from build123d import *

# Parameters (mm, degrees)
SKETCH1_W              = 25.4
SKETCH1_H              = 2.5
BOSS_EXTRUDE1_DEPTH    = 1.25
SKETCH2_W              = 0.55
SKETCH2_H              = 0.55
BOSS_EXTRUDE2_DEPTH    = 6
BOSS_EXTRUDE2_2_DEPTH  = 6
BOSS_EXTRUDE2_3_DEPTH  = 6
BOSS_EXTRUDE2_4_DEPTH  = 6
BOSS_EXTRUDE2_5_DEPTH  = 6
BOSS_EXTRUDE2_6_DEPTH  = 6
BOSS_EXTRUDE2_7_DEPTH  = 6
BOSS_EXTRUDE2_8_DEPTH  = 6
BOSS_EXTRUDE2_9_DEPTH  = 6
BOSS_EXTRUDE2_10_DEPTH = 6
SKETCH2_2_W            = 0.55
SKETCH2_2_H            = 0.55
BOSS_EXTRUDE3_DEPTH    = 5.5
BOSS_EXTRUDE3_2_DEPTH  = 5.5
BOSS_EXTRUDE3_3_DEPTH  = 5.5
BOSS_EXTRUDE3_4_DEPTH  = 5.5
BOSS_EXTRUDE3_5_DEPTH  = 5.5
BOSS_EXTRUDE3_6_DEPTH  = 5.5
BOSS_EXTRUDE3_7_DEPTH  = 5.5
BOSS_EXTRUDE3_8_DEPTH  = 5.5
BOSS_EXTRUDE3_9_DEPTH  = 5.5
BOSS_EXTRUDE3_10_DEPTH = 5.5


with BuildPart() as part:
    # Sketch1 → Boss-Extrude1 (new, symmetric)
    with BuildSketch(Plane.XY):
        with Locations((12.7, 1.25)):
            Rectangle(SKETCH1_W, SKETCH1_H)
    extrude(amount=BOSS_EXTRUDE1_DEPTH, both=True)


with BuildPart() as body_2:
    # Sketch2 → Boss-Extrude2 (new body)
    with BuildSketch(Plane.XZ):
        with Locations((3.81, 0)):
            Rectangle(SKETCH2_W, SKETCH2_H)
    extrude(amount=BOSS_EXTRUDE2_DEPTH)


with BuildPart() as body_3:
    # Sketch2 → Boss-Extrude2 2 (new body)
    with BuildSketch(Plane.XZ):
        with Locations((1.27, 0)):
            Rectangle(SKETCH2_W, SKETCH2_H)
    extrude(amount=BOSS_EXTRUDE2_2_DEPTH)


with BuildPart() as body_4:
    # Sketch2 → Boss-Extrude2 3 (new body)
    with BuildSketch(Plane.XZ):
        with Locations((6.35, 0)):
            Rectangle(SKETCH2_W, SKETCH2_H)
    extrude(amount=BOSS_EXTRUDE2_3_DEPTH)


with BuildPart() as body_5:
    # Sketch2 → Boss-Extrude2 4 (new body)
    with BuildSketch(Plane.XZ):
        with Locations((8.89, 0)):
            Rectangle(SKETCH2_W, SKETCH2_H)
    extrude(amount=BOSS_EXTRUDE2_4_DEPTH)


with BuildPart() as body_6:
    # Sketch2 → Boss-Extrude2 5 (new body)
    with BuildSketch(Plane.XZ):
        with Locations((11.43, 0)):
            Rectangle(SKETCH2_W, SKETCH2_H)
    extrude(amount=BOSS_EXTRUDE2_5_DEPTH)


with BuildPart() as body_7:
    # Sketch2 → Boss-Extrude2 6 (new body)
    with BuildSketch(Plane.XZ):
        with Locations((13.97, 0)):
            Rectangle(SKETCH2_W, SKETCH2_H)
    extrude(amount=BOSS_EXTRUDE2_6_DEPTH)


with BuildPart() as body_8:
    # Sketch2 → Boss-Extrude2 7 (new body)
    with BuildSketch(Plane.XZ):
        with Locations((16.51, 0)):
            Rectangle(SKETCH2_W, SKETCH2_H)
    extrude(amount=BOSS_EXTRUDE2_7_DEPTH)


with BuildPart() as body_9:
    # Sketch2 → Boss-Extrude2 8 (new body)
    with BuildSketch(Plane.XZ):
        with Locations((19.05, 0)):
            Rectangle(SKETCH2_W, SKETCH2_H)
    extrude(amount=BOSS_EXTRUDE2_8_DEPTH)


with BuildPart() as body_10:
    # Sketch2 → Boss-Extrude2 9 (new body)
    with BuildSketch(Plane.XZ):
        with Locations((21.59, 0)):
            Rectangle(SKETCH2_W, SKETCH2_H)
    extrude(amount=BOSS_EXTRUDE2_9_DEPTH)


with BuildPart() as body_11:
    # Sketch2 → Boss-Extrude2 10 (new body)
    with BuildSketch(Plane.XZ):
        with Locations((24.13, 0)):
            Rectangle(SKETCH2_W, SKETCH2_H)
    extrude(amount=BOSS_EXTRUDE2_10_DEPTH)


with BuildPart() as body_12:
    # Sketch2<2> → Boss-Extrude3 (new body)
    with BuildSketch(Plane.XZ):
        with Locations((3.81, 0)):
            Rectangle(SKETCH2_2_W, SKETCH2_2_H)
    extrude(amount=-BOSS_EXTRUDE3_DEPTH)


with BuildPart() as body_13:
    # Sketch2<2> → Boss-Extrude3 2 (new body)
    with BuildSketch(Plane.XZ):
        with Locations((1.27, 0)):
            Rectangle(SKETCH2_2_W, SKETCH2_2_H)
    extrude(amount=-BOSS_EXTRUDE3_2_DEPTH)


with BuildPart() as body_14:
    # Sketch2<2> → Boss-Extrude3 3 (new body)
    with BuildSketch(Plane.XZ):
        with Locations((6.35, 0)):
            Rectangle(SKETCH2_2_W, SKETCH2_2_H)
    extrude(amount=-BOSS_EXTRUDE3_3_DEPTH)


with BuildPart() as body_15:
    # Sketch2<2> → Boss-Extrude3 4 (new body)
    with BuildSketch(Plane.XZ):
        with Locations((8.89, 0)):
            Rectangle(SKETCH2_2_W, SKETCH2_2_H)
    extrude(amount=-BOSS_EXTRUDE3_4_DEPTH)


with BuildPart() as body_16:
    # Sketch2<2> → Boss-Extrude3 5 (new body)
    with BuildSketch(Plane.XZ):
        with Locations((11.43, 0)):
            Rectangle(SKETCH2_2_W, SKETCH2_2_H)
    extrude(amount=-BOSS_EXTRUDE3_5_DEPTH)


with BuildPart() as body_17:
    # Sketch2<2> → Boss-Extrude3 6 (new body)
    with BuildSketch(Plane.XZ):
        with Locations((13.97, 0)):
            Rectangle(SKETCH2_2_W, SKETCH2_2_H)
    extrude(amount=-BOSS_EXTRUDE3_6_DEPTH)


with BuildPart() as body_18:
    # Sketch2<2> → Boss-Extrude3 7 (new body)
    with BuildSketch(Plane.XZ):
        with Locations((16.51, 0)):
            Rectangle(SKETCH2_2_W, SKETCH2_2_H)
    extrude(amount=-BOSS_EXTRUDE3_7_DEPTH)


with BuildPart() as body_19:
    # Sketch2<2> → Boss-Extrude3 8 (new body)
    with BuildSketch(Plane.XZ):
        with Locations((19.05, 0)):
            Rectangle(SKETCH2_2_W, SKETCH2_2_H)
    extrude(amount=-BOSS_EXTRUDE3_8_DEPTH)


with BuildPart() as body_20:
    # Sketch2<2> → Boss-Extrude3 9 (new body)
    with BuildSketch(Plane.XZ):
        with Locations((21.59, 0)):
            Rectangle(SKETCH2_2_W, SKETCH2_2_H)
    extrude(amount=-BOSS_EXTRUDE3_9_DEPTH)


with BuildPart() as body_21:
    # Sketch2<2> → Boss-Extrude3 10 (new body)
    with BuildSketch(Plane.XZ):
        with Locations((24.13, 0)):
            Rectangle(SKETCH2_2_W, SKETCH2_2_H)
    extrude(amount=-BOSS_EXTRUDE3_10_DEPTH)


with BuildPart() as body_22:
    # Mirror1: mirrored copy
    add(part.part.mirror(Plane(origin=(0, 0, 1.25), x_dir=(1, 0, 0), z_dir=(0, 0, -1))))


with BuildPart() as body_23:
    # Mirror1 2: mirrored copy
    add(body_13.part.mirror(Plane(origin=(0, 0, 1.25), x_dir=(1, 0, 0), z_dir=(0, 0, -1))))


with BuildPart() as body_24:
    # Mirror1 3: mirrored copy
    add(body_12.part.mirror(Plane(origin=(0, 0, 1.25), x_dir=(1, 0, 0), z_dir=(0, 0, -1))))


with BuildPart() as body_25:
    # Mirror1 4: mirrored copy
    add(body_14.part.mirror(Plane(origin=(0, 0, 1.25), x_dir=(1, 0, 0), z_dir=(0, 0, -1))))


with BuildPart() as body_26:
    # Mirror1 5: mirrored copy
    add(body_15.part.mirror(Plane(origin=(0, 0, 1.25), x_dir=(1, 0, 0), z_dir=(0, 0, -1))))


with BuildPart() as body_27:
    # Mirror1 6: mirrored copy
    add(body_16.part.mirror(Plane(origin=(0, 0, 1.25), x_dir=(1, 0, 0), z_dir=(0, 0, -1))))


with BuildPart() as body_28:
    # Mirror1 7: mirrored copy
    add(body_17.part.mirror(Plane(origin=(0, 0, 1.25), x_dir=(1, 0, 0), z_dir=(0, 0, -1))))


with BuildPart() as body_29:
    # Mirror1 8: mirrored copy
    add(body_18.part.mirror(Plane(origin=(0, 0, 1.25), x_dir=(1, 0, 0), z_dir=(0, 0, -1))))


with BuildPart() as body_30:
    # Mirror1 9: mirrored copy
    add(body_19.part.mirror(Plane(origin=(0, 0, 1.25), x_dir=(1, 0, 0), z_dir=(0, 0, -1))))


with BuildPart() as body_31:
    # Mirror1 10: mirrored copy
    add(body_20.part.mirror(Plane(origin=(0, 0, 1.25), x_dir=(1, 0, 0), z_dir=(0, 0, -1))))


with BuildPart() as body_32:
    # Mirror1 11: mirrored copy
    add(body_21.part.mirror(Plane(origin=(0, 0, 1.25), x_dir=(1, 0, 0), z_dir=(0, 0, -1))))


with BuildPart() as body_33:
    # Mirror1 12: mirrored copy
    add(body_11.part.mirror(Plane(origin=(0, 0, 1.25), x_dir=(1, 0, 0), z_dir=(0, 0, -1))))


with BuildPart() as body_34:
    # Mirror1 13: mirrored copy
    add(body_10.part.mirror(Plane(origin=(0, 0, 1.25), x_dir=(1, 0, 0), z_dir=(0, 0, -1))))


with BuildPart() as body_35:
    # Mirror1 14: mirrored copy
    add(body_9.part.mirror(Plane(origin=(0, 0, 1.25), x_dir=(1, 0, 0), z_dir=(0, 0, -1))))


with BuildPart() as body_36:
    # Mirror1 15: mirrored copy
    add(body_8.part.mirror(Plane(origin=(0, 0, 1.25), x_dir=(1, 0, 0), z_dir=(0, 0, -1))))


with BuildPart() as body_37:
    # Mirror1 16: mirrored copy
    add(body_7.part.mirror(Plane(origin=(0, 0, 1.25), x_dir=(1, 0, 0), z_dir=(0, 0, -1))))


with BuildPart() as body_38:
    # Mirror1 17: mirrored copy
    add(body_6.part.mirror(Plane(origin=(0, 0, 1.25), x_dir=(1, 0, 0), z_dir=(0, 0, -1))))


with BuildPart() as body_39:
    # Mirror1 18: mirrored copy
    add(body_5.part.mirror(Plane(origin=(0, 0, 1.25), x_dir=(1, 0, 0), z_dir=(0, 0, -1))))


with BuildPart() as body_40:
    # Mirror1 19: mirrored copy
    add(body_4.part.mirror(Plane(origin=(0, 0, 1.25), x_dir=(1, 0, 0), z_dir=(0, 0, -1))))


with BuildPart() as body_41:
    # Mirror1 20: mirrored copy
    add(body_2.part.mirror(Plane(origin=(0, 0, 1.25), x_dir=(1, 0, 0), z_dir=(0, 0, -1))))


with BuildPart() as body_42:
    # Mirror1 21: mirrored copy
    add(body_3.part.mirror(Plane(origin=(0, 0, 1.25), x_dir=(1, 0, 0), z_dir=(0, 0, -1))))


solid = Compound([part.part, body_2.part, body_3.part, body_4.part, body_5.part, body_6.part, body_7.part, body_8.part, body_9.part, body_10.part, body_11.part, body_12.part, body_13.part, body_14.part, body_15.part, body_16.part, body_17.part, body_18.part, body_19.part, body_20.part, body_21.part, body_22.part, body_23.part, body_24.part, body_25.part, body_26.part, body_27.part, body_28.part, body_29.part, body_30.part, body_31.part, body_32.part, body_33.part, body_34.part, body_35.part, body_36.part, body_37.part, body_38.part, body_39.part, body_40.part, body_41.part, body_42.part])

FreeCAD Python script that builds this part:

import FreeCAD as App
import Part
import Sketcher
from FreeCAD import Vector
Q = App.Units.Quantity

doc = App.newDocument("Part")
body = doc.addObject("PartDesign::Body", "Body")

sketch1 = body.newObject("Sketcher::SketchObject", "Sketch")
sketch1.AttachmentSupport = (doc.getObject("XY_Plane"), [""])
sketch1.MapMode = "FlatFace"
sketch1.addGeometry([
    Part.LineSegment(Vector(0, 2.5, 0), Vector(0, 0, 0)),
    Part.LineSegment(Vector(0, 0, 0), Vector(25.4, 0, 0)),
    Part.LineSegment(Vector(25.4, 0, 0), Vector(25.4, 2.5, 0)),
    Part.LineSegment(Vector(25.4, 2.5, 0), Vector(0, 2.5, 0)),
], False)
sketch1.addConstraint([
    Sketcher.Constraint("Coincident", 0, 2, 1, 1),
    Sketcher.Constraint("Coincident", 1, 2, 2, 1),
    Sketcher.Constraint("Coincident", 2, 2, 3, 1),
    Sketcher.Constraint("Coincident", 3, 2, 0, 1),
    Sketcher.Constraint("Vertical", 0),
    Sketcher.Constraint("Horizontal", 1),
    Sketcher.Constraint("Vertical", 2),
    Sketcher.Constraint("Horizontal", 3),
    Sketcher.Constraint("Coincident", 0, 2, -1, 1),
    Sketcher.Constraint("DistanceX", 1, 1, 1, 2, Q("25.4 mm")),
    Sketcher.Constraint("DistanceY", 0, 2, 0, 1, Q("2.5 mm")),
])
pad1 = body.newObject("PartDesign::Pad", "Pad")
pad1.Profile = sketch1
pad1.Length = 2.5
pad1.Midplane = True
body2 = doc.addObject("PartDesign::Body", "Body001")

sketch2 = body2.newObject("Sketcher::SketchObject", "Sketch001")
sketch2.AttachmentSupport = (doc.getObject("XZ_Plane001"), [""])
sketch2.MapMode = "FlatFace"
sketch2.addGeometry([
    Part.LineSegment(Vector(3.5, 0.3, 0), Vector(3.5, -0.3, 0)),
    Part.LineSegment(Vector(3.5, -0.3, 0), Vector(4.1, -0.3, 0)),
    Part.LineSegment(Vector(4.1, -0.3, 0), Vector(4.1, 0.3, 0)),
    Part.LineSegment(Vector(4.1, 0.3, 0), Vector(3.5, 0.3, 0)),
], False)
sketch2.addConstraint([
    Sketcher.Constraint("Coincident", 0, 2, 1, 1),
    Sketcher.Constraint("Coincident", 1, 2, 2, 1),
    Sketcher.Constraint("Coincident", 2, 2, 3, 1),
    Sketcher.Constraint("Coincident", 3, 2, 0, 1),
    Sketcher.Constraint("Vertical", 0),
    Sketcher.Constraint("Horizontal", 1),
    Sketcher.Constraint("Vertical", 2),
    Sketcher.Constraint("Horizontal", 3),
    Sketcher.Constraint("Equal", 3, 0),
    Sketcher.Constraint("DistanceX", 1, 1, 1, 2, Q("0.55 mm")),
    Sketcher.Constraint("DistanceX", -1, 1, 0, 2, Q("3.535 mm")),
    Sketcher.Constraint("DistanceY", 0, 2, -1, 1, Q("0.275 mm")),
])
pad2 = body2.newObject("PartDesign::Pad", "Pad001")
pad2.Profile = sketch2
pad2.Length = 6
body3 = doc.addObject("PartDesign::Body", "Body002")

sketch3 = body3.newObject("Sketcher::SketchObject", "Sketch002")
sketch3.AttachmentSupport = (doc.getObject("XZ_Plane002"), [""])
sketch3.MapMode = "FlatFace"
sketch3.addGeometry([
    Part.LineSegment(Vector(1, 0.3, 0), Vector(1, -0.3, 0)),
    Part.LineSegment(Vector(1, -0.3, 0), Vector(1.5, -0.3, 0)),
    Part.LineSegment(Vector(1.5, -0.3, 0), Vector(1.5, 0.3, 0)),
    Part.LineSegment(Vector(1.5, 0.3, 0), Vector(1, 0.3, 0)),
], False)
sketch3.addConstraint([
    Sketcher.Constraint("Coincident", 0, 2, 1, 1),
    Sketcher.Constraint("Coincident", 1, 2, 2, 1),
    Sketcher.Constraint("Coincident", 2, 2, 3, 1),
    Sketcher.Constraint("Coincident", 3, 2, 0, 1),
    Sketcher.Constraint("Vertical", 0),
    Sketcher.Constraint("Horizontal", 1),
    Sketcher.Constraint("Vertical", 2),
    Sketcher.Constraint("Horizontal", 3),
    Sketcher.Constraint("Equal", 3, 0),
    Sketcher.Constraint("DistanceX", 1, 1, 1, 2, Q("0.55 mm")),
    Sketcher.Constraint("DistanceX", -1, 1, 0, 2, Q("0.995 mm")),
    Sketcher.Constraint("DistanceY", 0, 2, -1, 1, Q("0.275 mm")),
])
pad3 = body3.newObject("PartDesign::Pad", "Pad002")
pad3.Profile = sketch3
pad3.Length = 6
body4 = doc.addObject("PartDesign::Body", "Body003")

sketch4 = body4.newObject("Sketcher::SketchObject", "Sketch003")
sketch4.AttachmentSupport = (doc.getObject("XZ_Plane003"), [""])
sketch4.MapMode = "FlatFace"
sketch4.addGeometry([
    Part.LineSegment(Vector(6.1, 0.3, 0), Vector(6.1, -0.3, 0)),
    Part.LineSegment(Vector(6.1, -0.3, 0), Vector(6.6, -0.3, 0)),
    Part.LineSegment(Vector(6.6, -0.3, 0), Vector(6.6, 0.3, 0)),
    Part.LineSegment(Vector(6.6, 0.3, 0), Vector(6.1, 0.3, 0)),
], False)
sketch4.addConstraint([
    Sketcher.Constraint("Coincident", 0, 2, 1, 1),
    Sketcher.Constraint("Coincident", 1, 2, 2, 1),
    Sketcher.Constraint("Coincident", 2, 2, 3, 1),
    Sketcher.Constraint("Coincident", 3, 2, 0, 1),
    Sketcher.Constraint("Vertical", 0),
    Sketcher.Constraint("Horizontal", 1),
    Sketcher.Constraint("Vertical", 2),
    Sketcher.Constraint("Horizontal", 3),
    Sketcher.Constraint("Equal", 3, 0),
    Sketcher.Constraint("DistanceX", 1, 1, 1, 2, Q("0.55 mm")),
    Sketcher.Constraint("DistanceX", -1, 1, 0, 2, Q("6.075 mm")),
    Sketcher.Constraint("DistanceY", 0, 2, -1, 1, Q("0.275 mm")),
])
pad4 = body4.newObject("PartDesign::Pad", "Pad003")
pad4.Profile = sketch4
pad4.Length = 6
body5 = doc.addObject("PartDesign::Body", "Body004")

sketch5 = body5.newObject("Sketcher::SketchObject", "Sketch004")
sketch5.AttachmentSupport = (doc.getObject("XZ_Plane004"), [""])
sketch5.MapMode = "FlatFace"
sketch5.addGeometry([
    Part.LineSegment(Vector(8.6, 0.3, 0), Vector(8.6, -0.3, 0)),
    Part.LineSegment(Vector(8.6, -0.3, 0), Vector(9.2, -0.3, 0)),
    Part.LineSegment(Vector(9.2, -0.3, 0), Vector(9.2, 0.3, 0)),
    Part.LineSegment(Vector(9.2, 0.3, 0), Vector(8.6, 0.3, 0)),
], False)
sketch5.addConstraint([
    Sketcher.Constraint("Coincident", 0, 2, 1, 1),
    Sketcher.Constraint("Coincident", 1, 2, 2, 1),
    Sketcher.Constraint("Coincident", 2, 2, 3, 1),
    Sketcher.Constraint("Coincident", 3, 2, 0, 1),
    Sketcher.Constraint("Vertical", 0),
    Sketcher.Constraint("Horizontal", 1),
    Sketcher.Constraint("Vertical", 2),
    Sketcher.Constraint("Horizontal", 3),
    Sketcher.Constraint("Equal", 3, 0),
    Sketcher.Constraint("DistanceX", 1, 1, 1, 2, Q("0.55 mm")),
    Sketcher.Constraint("DistanceX", -1, 1, 0, 2, Q("8.615 mm")),
    Sketcher.Constraint("DistanceY", 0, 2, -1, 1, Q("0.275 mm")),
])
pad5 = body5.newObject("PartDesign::Pad", "Pad004")
pad5.Profile = sketch5
pad5.Length = 6
body6 = doc.addObject("PartDesign::Body", "Body005")

sketch6 = body6.newObject("Sketcher::SketchObject", "Sketch005")
sketch6.AttachmentSupport = (doc.getObject("XZ_Plane005"), [""])
sketch6.MapMode = "FlatFace"
sketch6.addGeometry([
    Part.LineSegment(Vector(11.2, 0.3, 0), Vector(11.2, -0.3, 0)),
    Part.LineSegment(Vector(11.2, -0.3, 0), Vector(11.7, -0.3, 0)),
    Part.LineSegment(Vector(11.7, -0.3, 0), Vector(11.7, 0.3, 0)),
    Part.LineSegment(Vector(11.7, 0.3, 0), Vector(11.2, 0.3, 0)),
], False)
sketch6.addConstraint([
    Sketcher.Constraint("Coincident", 0, 2, 1, 1),
    Sketcher.Constraint("Coincident", 1, 2, 2, 1),
    Sketcher.Constraint("Coincident", 2, 2, 3, 1),
    Sketcher.Constraint("Coincident", 3, 2, 0, 1),
    Sketcher.Constraint("Vertical", 0),
    Sketcher.Constraint("Horizontal", 1),
    Sketcher.Constraint("Vertical", 2),
    Sketcher.Constraint("Horizontal", 3),
    Sketcher.Constraint("Equal", 3, 0),
    Sketcher.Constraint("DistanceX", 1, 1, 1, 2, Q("0.55 mm")),
    Sketcher.Constraint("DistanceX", -1, 1, 0, 2, Q("11.155 mm")),
    Sketcher.Constraint("DistanceY", 0, 2, -1, 1, Q("0.275 mm")),
])
pad6 = body6.newObject("PartDesign::Pad", "Pad005")
pad6.Profile = sketch6
pad6.Length = 6
body7 = doc.addObject("PartDesign::Body", "Body006")

sketch7 = body7.newObject("Sketcher::SketchObject", "Sketch006")
sketch7.AttachmentSupport = (doc.getObject("XZ_Plane006"), [""])
sketch7.MapMode = "FlatFace"
sketch7.addGeometry([
    Part.LineSegment(Vector(13.7, 0.3, 0), Vector(13.7, -0.3, 0)),
    Part.LineSegment(Vector(13.7, -0.3, 0), Vector(14.2, -0.3, 0)),
    Part.LineSegment(Vector(14.2, -0.3, 0), Vector(14.2, 0.3, 0)),
    Part.LineSegment(Vector(14.2, 0.3, 0), Vector(13.7, 0.3, 0)),
], False)
sketch7.addConstraint([
    Sketcher.Constraint("Coincident", 0, 2, 1, 1),
    Sketcher.Constraint("Coincident", 1, 2, 2, 1),
    Sketcher.Constraint("Coincident", 2, 2, 3, 1),
    Sketcher.Constraint("Coincident", 3, 2, 0, 1),
    Sketcher.Constraint("Vertical", 0),
    Sketcher.Constraint("Horizontal", 1),
    Sketcher.Constraint("Vertical", 2),
    Sketcher.Constraint("Horizontal", 3),
    Sketcher.Constraint("Equal", 3, 0),
    Sketcher.Constraint("DistanceX", 1, 1, 1, 2, Q("0.55 mm")),
    Sketcher.Constraint("DistanceX", -1, 1, 0, 2, Q("13.695 mm")),
    Sketcher.Constraint("DistanceY", 0, 2, -1, 1, Q("0.275 mm")),
])
pad7 = body7.newObject("PartDesign::Pad", "Pad006")
pad7.Profile = sketch7
pad7.Length = 6
body8 = doc.addObject("PartDesign::Body", "Body007")

sketch8 = body8.newObject("Sketcher::SketchObject", "Sketch007")
sketch8.AttachmentSupport = (doc.getObject("XZ_Plane007"), [""])
sketch8.MapMode = "FlatFace"
sketch8.addGeometry([
    Part.LineSegment(Vector(16.2, 0.3, 0), Vector(16.2, -0.3, 0)),
    Part.LineSegment(Vector(16.2, -0.3, 0), Vector(16.8, -0.3, 0)),
    Part.LineSegment(Vector(16.8, -0.3, 0), Vector(16.8, 0.3, 0)),
    Part.LineSegment(Vector(16.8, 0.3, 0), Vector(16.2, 0.3, 0)),
], False)
sketch8.addConstraint([
    Sketcher.Constraint("Coincident", 0, 2, 1, 1),
    Sketcher.Constraint("Coincident", 1, 2, 2, 1),
    Sketcher.Constraint("Coincident", 2, 2, 3, 1),
    Sketcher.Constraint("Coincident", 3, 2, 0, 1),
    Sketcher.Constraint("Vertical", 0),
    Sketcher.Constraint("Horizontal", 1),
    Sketcher.Constraint("Vertical", 2),
    Sketcher.Constraint("Horizontal", 3),
    Sketcher.Constraint("Equal", 3, 0),
    Sketcher.Constraint("DistanceX", 1, 1, 1, 2, Q("0.55 mm")),
    Sketcher.Constraint("DistanceX", -1, 1, 0, 2, Q("16.235 mm")),
    Sketcher.Constraint("DistanceY", 0, 2, -1, 1, Q("0.275 mm")),
])
pad8 = body8.newObject("PartDesign::Pad", "Pad007")
pad8.Profile = sketch8
pad8.Length = 6
body9 = doc.addObject("PartDesign::Body", "Body008")

sketch9 = body9.newObject("Sketcher::SketchObject", "Sketch008")
sketch9.AttachmentSupport = (doc.getObject("XZ_Plane008"), [""])
sketch9.MapMode = "FlatFace"
sketch9.addGeometry([
    Part.LineSegment(Vector(18.8, 0.3, 0), Vector(18.8, -0.3, 0)),
    Part.LineSegment(Vector(18.8, -0.3, 0), Vector(19.3, -0.3, 0)),
    Part.LineSegment(Vector(19.3, -0.3, 0), Vector(19.3, 0.3, 0)),
    Part.LineSegment(Vector(19.3, 0.3, 0), Vector(18.8, 0.3, 0)),
], False)
sketch9.addConstraint([
    Sketcher.Constraint("Coincident", 0, 2, 1, 1),
    Sketcher.Constraint("Coincident", 1, 2, 2, 1),
    Sketcher.Constraint("Coincident", 2, 2, 3, 1),
    Sketcher.Constraint("Coincident", 3, 2, 0, 1),
    Sketcher.Constraint("Vertical", 0),
    Sketcher.Constraint("Horizontal", 1),
    Sketcher.Constraint("Vertical", 2),
    Sketcher.Constraint("Horizontal", 3),
    Sketcher.Constraint("Equal", 3, 0),
    Sketcher.Constraint("DistanceX", 1, 1, 1, 2, Q("0.55 mm")),
    Sketcher.Constraint("DistanceX", -1, 1, 0, 2, Q("18.775 mm")),
    Sketcher.Constraint("DistanceY", 0, 2, -1, 1, Q("0.275 mm")),
])
pad9 = body9.newObject("PartDesign::Pad", "Pad008")
pad9.Profile = sketch9
pad9.Length = 6
body10 = doc.addObject("PartDesign::Body", "Body009")

sketch10 = body10.newObject("Sketcher::SketchObject", "Sketch009")
sketch10.AttachmentSupport = (doc.getObject("XZ_Plane009"), [""])
sketch10.MapMode = "FlatFace"
sketch10.addGeometry([
    Part.LineSegment(Vector(21.3, 0.3, 0), Vector(21.3, -0.3, 0)),
    Part.LineSegment(Vector(21.3, -0.3, 0), Vector(21.9, -0.3, 0)),
    Part.LineSegment(Vector(21.9, -0.3, 0), Vector(21.9, 0.3, 0)),
    Part.LineSegment(Vector(21.9, 0.3, 0), Vector(21.3, 0.3, 0)),
], False)
sketch10.addConstraint([
    Sketcher.Constraint("Coincident", 0, 2, 1, 1),
    Sketcher.Constraint("Coincident", 1, 2, 2, 1),
    Sketcher.Constraint("Coincident", 2, 2, 3, 1),
    Sketcher.Constraint("Coincident", 3, 2, 0, 1),
    Sketcher.Constraint("Vertical", 0),
    Sketcher.Constraint("Horizontal", 1),
    Sketcher.Constraint("Vertical", 2),
    Sketcher.Constraint("Horizontal", 3),
    Sketcher.Constraint("Equal", 3, 0),
    Sketcher.Constraint("DistanceX", 1, 1, 1, 2, Q("0.55 mm")),
    Sketcher.Constraint("DistanceX", -1, 1, 0, 2, Q("21.315 mm")),
    Sketcher.Constraint("DistanceY", 0, 2, -1, 1, Q("0.275 mm")),
])
pad10 = body10.newObject("PartDesign::Pad", "Pad009")
pad10.Profile = sketch10
pad10.Length = 6
body11 = doc.addObject("PartDesign::Body", "Body010")

sketch11 = body11.newObject("Sketcher::SketchObject", "Sketch010")
sketch11.AttachmentSupport = (doc.getObject("XZ_Plane010"), [""])
sketch11.MapMode = "FlatFace"
sketch11.addGeometry([
    Part.LineSegment(Vector(23.9, 0.3, 0), Vector(23.9, -0.3, 0)),
    Part.LineSegment(Vector(23.9, -0.3, 0), Vector(24.4, -0.3, 0)),
    Part.LineSegment(Vector(24.4, -0.3, 0), Vector(24.4, 0.3, 0)),
    Part.LineSegment(Vector(24.4, 0.3, 0), Vector(23.9, 0.3, 0)),
], False)
sketch11.addConstraint([
    Sketcher.Constraint("Coincident", 0, 2, 1, 1),
    Sketcher.Constraint("Coincident", 1, 2, 2, 1),
    Sketcher.Constraint("Coincident", 2, 2, 3, 1),
    Sketcher.Constraint("Coincident", 3, 2, 0, 1),
    Sketcher.Constraint("Vertical", 0),
    Sketcher.Constraint("Horizontal", 1),
    Sketcher.Constraint("Vertical", 2),
    Sketcher.Constraint("Horizontal", 3),
    Sketcher.Constraint("Equal", 3, 0),
    Sketcher.Constraint("DistanceX", 1, 1, 1, 2, Q("0.55 mm")),
    Sketcher.Constraint("DistanceX", -1, 1, 0, 2, Q("23.855 mm")),
    Sketcher.Constraint("DistanceY", 0, 2, -1, 1, Q("0.275 mm")),
])
pad11 = body11.newObject("PartDesign::Pad", "Pad010")
pad11.Profile = sketch11
pad11.Length = 6
body12 = doc.addObject("PartDesign::Body", "Body011")

sketch12 = body12.newObject("Sketcher::SketchObject", "Sketch011")
sketch12.AttachmentSupport = (doc.getObject("XZ_Plane011"), [""])
sketch12.MapMode = "FlatFace"
sketch12.addGeometry([
    Part.LineSegment(Vector(3.5, 0.3, 0), Vector(3.5, -0.3, 0)),
    Part.LineSegment(Vector(3.5, -0.3, 0), Vector(4.1, -0.3, 0)),
    Part.LineSegment(Vector(4.1, -0.3, 0), Vector(4.1, 0.3, 0)),
    Part.LineSegment(Vector(4.1, 0.3, 0), Vector(3.5, 0.3, 0)),
], False)
sketch12.addConstraint([
    Sketcher.Constraint("Coincident", 0, 2, 1, 1),
    Sketcher.Constraint("Coincident", 1, 2, 2, 1),
    Sketcher.Constraint("Coincident", 2, 2, 3, 1),
    Sketcher.Constraint("Coincident", 3, 2, 0, 1),
    Sketcher.Constraint("Vertical", 0),
    Sketcher.Constraint("Horizontal", 1),
    Sketcher.Constraint("Vertical", 2),
    Sketcher.Constraint("Horizontal", 3),
    Sketcher.Constraint("Equal", 3, 0),
    Sketcher.Constraint("DistanceX", 1, 1, 1, 2, Q("0.55 mm")),
    Sketcher.Constraint("DistanceX", -1, 1, 0, 2, Q("3.535 mm")),
    Sketcher.Constraint("DistanceY", 0, 2, -1, 1, Q("0.275 mm")),
])
pad12 = body12.newObject("PartDesign::Pad", "Pad011")
pad12.Profile = sketch12
pad12.Length = 5.5
pad12.Reversed = True
body13 = doc.addObject("PartDesign::Body", "Body012")

sketch13 = body13.newObject("Sketcher::SketchObject", "Sketch012")
sketch13.AttachmentSupport = (doc.getObject("XZ_Plane012"), [""])
sketch13.MapMode = "FlatFace"
sketch13.addGeometry([
    Part.LineSegment(Vector(1, 0.3, 0), Vector(1, -0.3, 0)),
    Part.LineSegment(Vector(1, -0.3, 0), Vector(1.5, -0.3, 0)),
    Part.LineSegment(Vector(1.5, -0.3, 0), Vector(1.5, 0.3, 0)),
    Part.LineSegment(Vector(1.5, 0.3, 0), Vector(1, 0.3, 0)),
], False)
sketch13.addConstraint([
    Sketcher.Constraint("Coincident", 0, 2, 1, 1),
    Sketcher.Constraint("Coincident", 1, 2, 2, 1),
    Sketcher.Constraint("Coincident", 2, 2, 3, 1),
    Sketcher.Constraint("Coincident", 3, 2, 0, 1),
    Sketcher.Constraint("Vertical", 0),
    Sketcher.Constraint("Horizontal", 1),
    Sketcher.Constraint("Vertical", 2),
    Sketcher.Constraint("Horizontal", 3),
    Sketcher.Constraint("Equal", 3, 0),
    Sketcher.Constraint("DistanceX", 1, 1, 1, 2, Q("0.55 mm")),
    Sketcher.Constraint("DistanceX", -1, 1, 0, 2, Q("0.995 mm")),
    Sketcher.Constraint("DistanceY", 0, 2, -1, 1, Q("0.275 mm")),
])
pad13 = body13.newObject("PartDesign::Pad", "Pad012")
pad13.Profile = sketch13
pad13.Length = 5.5
pad13.Reversed = True
body14 = doc.addObject("PartDesign::Body", "Body013")

sketch14 = body14.newObject("Sketcher::SketchObject", "Sketch013")
sketch14.AttachmentSupport = (doc.getObject("XZ_Plane013"), [""])
sketch14.MapMode = "FlatFace"
sketch14.addGeometry([
    Part.LineSegment(Vector(6.1, 0.3, 0), Vector(6.1, -0.3, 0)),
    Part.LineSegment(Vector(6.1, -0.3, 0), Vector(6.6, -0.3, 0)),
    Part.LineSegment(Vector(6.6, -0.3, 0), Vector(6.6, 0.3, 0)),
    Part.LineSegment(Vector(6.6, 0.3, 0), Vector(6.1, 0.3, 0)),
], False)
sketch14.addConstraint([
    Sketcher.Constraint("Coincident", 0, 2, 1, 1),
    Sketcher.Constraint("Coincident", 1, 2, 2, 1),
    Sketcher.Constraint("Coincident", 2, 2, 3, 1),
    Sketcher.Constraint("Coincident", 3, 2, 0, 1),
    Sketcher.Constraint("Vertical", 0),
    Sketcher.Constraint("Horizontal", 1),
    Sketcher.Constraint("Vertical", 2),
    Sketcher.Constraint("Horizontal", 3),
    Sketcher.Constraint("Equal", 3, 0),
    Sketcher.Constraint("DistanceX", 1, 1, 1, 2, Q("0.55 mm")),
    Sketcher.Constraint("DistanceX", -1, 1, 0, 2, Q("6.075 mm")),
    Sketcher.Constraint("DistanceY", 0, 2, -1, 1, Q("0.275 mm")),
])
pad14 = body14.newObject("PartDesign::Pad", "Pad013")
pad14.Profile = sketch14
pad14.Length = 5.5
pad14.Reversed = True
body15 = doc.addObject("PartDesign::Body", "Body014")

sketch15 = body15.newObject("Sketcher::SketchObject", "Sketch014")
sketch15.AttachmentSupport = (doc.getObject("XZ_Plane014"), [""])
sketch15.MapMode = "FlatFace"
sketch15.addGeometry([
    Part.LineSegment(Vector(8.6, 0.3, 0), Vector(8.6, -0.3, 0)),
    Part.LineSegment(Vector(8.6, -0.3, 0), Vector(9.2, -0.3, 0)),
    Part.LineSegment(Vector(9.2, -0.3, 0), Vector(9.2, 0.3, 0)),
    Part.LineSegment(Vector(9.2, 0.3, 0), Vector(8.6, 0.3, 0)),
], False)
sketch15.addConstraint([
    Sketcher.Constraint("Coincident", 0, 2, 1, 1),
    Sketcher.Constraint("Coincident", 1, 2, 2, 1),
    Sketcher.Constraint("Coincident", 2, 2, 3, 1),
    Sketcher.Constraint("Coincident", 3, 2, 0, 1),
    Sketcher.Constraint("Vertical", 0),
    Sketcher.Constraint("Horizontal", 1),
    Sketcher.Constraint("Vertical", 2),
    Sketcher.Constraint("Horizontal", 3),
    Sketcher.Constraint("Equal", 3, 0),
    Sketcher.Constraint("DistanceX", 1, 1, 1, 2, Q("0.55 mm")),
    Sketcher.Constraint("DistanceX", -1, 1, 0, 2, Q("8.615 mm")),
    Sketcher.Constraint("DistanceY", 0, 2, -1, 1, Q("0.275 mm")),
])
pad15 = body15.newObject("PartDesign::Pad", "Pad014")
pad15.Profile = sketch15
pad15.Length = 5.5
pad15.Reversed = True
body16 = doc.addObject("PartDesign::Body", "Body015")

sketch16 = body16.newObject("Sketcher::SketchObject", "Sketch015")
sketch16.AttachmentSupport = (doc.getObject("XZ_Plane015"), [""])
sketch16.MapMode = "FlatFace"
sketch16.addGeometry([
    Part.LineSegment(Vector(11.2, 0.3, 0), Vector(11.2, -0.3, 0)),
    Part.LineSegment(Vector(11.2, -0.3, 0), Vector(11.7, -0.3, 0)),
    Part.LineSegment(Vector(11.7, -0.3, 0), Vector(11.7, 0.3, 0)),
    Part.LineSegment(Vector(11.7, 0.3, 0), Vector(11.2, 0.3, 0)),
], False)
sketch16.addConstraint([
    Sketcher.Constraint("Coincident", 0, 2, 1, 1),
    Sketcher.Constraint("Coincident", 1, 2, 2, 1),
    Sketcher.Constraint("Coincident", 2, 2, 3, 1),
    Sketcher.Constraint("Coincident", 3, 2, 0, 1),
    Sketcher.Constraint("Vertical", 0),
    Sketcher.Constraint("Horizontal", 1),
    Sketcher.Constraint("Vertical", 2),
    Sketcher.Constraint("Horizontal", 3),
    Sketcher.Constraint("Equal", 3, 0),
    Sketcher.Constraint("DistanceX", 1, 1, 1, 2, Q("0.55 mm")),
    Sketcher.Constraint("DistanceX", -1, 1, 0, 2, Q("11.155 mm")),
    Sketcher.Constraint("DistanceY", 0, 2, -1, 1, Q("0.275 mm")),
])
pad16 = body16.newObject("PartDesign::Pad", "Pad015")
pad16.Profile = sketch16
pad16.Length = 5.5
pad16.Reversed = True
body17 = doc.addObject("PartDesign::Body", "Body016")

sketch17 = body17.newObject("Sketcher::SketchObject", "Sketch016")
sketch17.AttachmentSupport = (doc.getObject("XZ_Plane016"), [""])
sketch17.MapMode = "FlatFace"
sketch17.addGeometry([
    Part.LineSegment(Vector(13.7, 0.3, 0), Vector(13.7, -0.3, 0)),
    Part.LineSegment(Vector(13.7, -0.3, 0), Vector(14.2, -0.3, 0)),
    Part.LineSegment(Vector(14.2, -0.3, 0), Vector(14.2, 0.3, 0)),
    Part.LineSegment(Vector(14.2, 0.3, 0), Vector(13.7, 0.3, 0)),
], False)
sketch17.addConstraint([
    Sketcher.Constraint("Coincident", 0, 2, 1, 1),
    Sketcher.Constraint("Coincident", 1, 2, 2, 1),
    Sketcher.Constraint("Coincident", 2, 2, 3, 1),
    Sketcher.Constraint("Coincident", 3, 2, 0, 1),
    Sketcher.Constraint("Vertical", 0),
    Sketcher.Constraint("Horizontal", 1),
    Sketcher.Constraint("Vertical", 2),
    Sketcher.Constraint("Horizontal", 3),
    Sketcher.Constraint("Equal", 3, 0),
    Sketcher.Constraint("DistanceX", 1, 1, 1, 2, Q("0.55 mm")),
    Sketcher.Constraint("DistanceX", -1, 1, 0, 2, Q("13.695 mm")),
    Sketcher.Constraint("DistanceY", 0, 2, -1, 1, Q("0.275 mm")),
])
pad17 = body17.newObject("PartDesign::Pad", "Pad016")
pad17.Profile = sketch17
pad17.Length = 5.5
pad17.Reversed = True
body18 = doc.addObject("PartDesign::Body", "Body017")

sketch18 = body18.newObject("Sketcher::SketchObject", "Sketch017")
sketch18.AttachmentSupport = (doc.getObject("XZ_Plane017"), [""])
sketch18.MapMode = "FlatFace"
sketch18.addGeometry([
    Part.LineSegment(Vector(16.2, 0.3, 0), Vector(16.2, -0.3, 0)),
    Part.LineSegment(Vector(16.2, -0.3, 0), Vector(16.8, -0.3, 0)),
    Part.LineSegment(Vector(16.8, -0.3, 0), Vector(16.8, 0.3, 0)),
    Part.LineSegment(Vector(16.8, 0.3, 0), Vector(16.2, 0.3, 0)),
], False)
sketch18.addConstraint([
    Sketcher.Constraint("Coincident", 0, 2, 1, 1),
    Sketcher.Constraint("Coincident", 1, 2, 2, 1),
    Sketcher.Constraint("Coincident", 2, 2, 3, 1),
    Sketcher.Constraint("Coincident", 3, 2, 0, 1),
    Sketcher.Constraint("Vertical", 0),
    Sketcher.Constraint("Horizontal", 1),
    Sketcher.Constraint("Vertical", 2),
    Sketcher.Constraint("Horizontal", 3),
    Sketcher.Constraint("Equal", 3, 0),
    Sketcher.Constraint("DistanceX", 1, 1, 1, 2, Q("0.55 mm")),
    Sketcher.Constraint("DistanceX", -1, 1, 0, 2, Q("16.235 mm")),
    Sketcher.Constraint("DistanceY", 0, 2, -1, 1, Q("0.275 mm")),
])
pad18 = body18.newObject("PartDesign::Pad", "Pad017")
pad18.Profile = sketch18
pad18.Length = 5.5
pad18.Reversed = True
body19 = doc.addObject("PartDesign::Body", "Body018")

sketch19 = body19.newObject("Sketcher::SketchObject", "Sketch018")
sketch19.AttachmentSupport = (doc.getObject("XZ_Plane018"), [""])
sketch19.MapMode = "FlatFace"
sketch19.addGeometry([
    Part.LineSegment(Vector(18.8, 0.3, 0), Vector(18.8, -0.3, 0)),
    Part.LineSegment(Vector(18.8, -0.3, 0), Vector(19.3, -0.3, 0)),
    Part.LineSegment(Vector(19.3, -0.3, 0), Vector(19.3, 0.3, 0)),
    Part.LineSegment(Vector(19.3, 0.3, 0), Vector(18.8, 0.3, 0)),
], False)
sketch19.addConstraint([
    Sketcher.Constraint("Coincident", 0, 2, 1, 1),
    Sketcher.Constraint("Coincident", 1, 2, 2, 1),
    Sketcher.Constraint("Coincident", 2, 2, 3, 1),
    Sketcher.Constraint("Coincident", 3, 2, 0, 1),
    Sketcher.Constraint("Vertical", 0),
    Sketcher.Constraint("Horizontal", 1),
    Sketcher.Constraint("Vertical", 2),
    Sketcher.Constraint("Horizontal", 3),
    Sketcher.Constraint("Equal", 3, 0),
    Sketcher.Constraint("DistanceX", 1, 1, 1, 2, Q("0.55 mm")),
    Sketcher.Constraint("DistanceX", -1, 1, 0, 2, Q("18.775 mm")),
    Sketcher.Constraint("DistanceY", 0, 2, -1, 1, Q("0.275 mm")),
])
pad19 = body19.newObject("PartDesign::Pad", "Pad018")
pad19.Profile = sketch19
pad19.Length = 5.5
pad19.Reversed = True
body20 = doc.addObject("PartDesign::Body", "Body019")

sketch20 = body20.newObject("Sketcher::SketchObject", "Sketch019")
sketch20.AttachmentSupport = (doc.getObject("XZ_Plane019"), [""])
sketch20.MapMode = "FlatFace"
sketch20.addGeometry([
    Part.LineSegment(Vector(21.3, 0.3, 0), Vector(21.3, -0.3, 0)),
    Part.LineSegment(Vector(21.3, -0.3, 0), Vector(21.9, -0.3, 0)),
    Part.LineSegment(Vector(21.9, -0.3, 0), Vector(21.9, 0.3, 0)),
    Part.LineSegment(Vector(21.9, 0.3, 0), Vector(21.3, 0.3, 0)),
], False)
sketch20.addConstraint([
    Sketcher.Constraint("Coincident", 0, 2, 1, 1),
    Sketcher.Constraint("Coincident", 1, 2, 2, 1),
    Sketcher.Constraint("Coincident", 2, 2, 3, 1),
    Sketcher.Constraint("Coincident", 3, 2, 0, 1),
    Sketcher.Constraint("Vertical", 0),
    Sketcher.Constraint("Horizontal", 1),
    Sketcher.Constraint("Vertical", 2),
    Sketcher.Constraint("Horizontal", 3),
    Sketcher.Constraint("Equal", 3, 0),
    Sketcher.Constraint("DistanceX", 1, 1, 1, 2, Q("0.55 mm")),
    Sketcher.Constraint("DistanceX", -1, 1, 0, 2, Q("21.315 mm")),
    Sketcher.Constraint("DistanceY", 0, 2, -1, 1, Q("0.275 mm")),
])
pad20 = body20.newObject("PartDesign::Pad", "Pad019")
pad20.Profile = sketch20
pad20.Length = 5.5
pad20.Reversed = True
body21 = doc.addObject("PartDesign::Body", "Body020")

sketch21 = body21.newObject("Sketcher::SketchObject", "Sketch020")
sketch21.AttachmentSupport = (doc.getObject("XZ_Plane020"), [""])
sketch21.MapMode = "FlatFace"
sketch21.addGeometry([
    Part.LineSegment(Vector(23.9, 0.3, 0), Vector(23.9, -0.3, 0)),
    Part.LineSegment(Vector(23.9, -0.3, 0), Vector(24.4, -0.3, 0)),
    Part.LineSegment(Vector(24.4, -0.3, 0), Vector(24.4, 0.3, 0)),
    Part.LineSegment(Vector(24.4, 0.3, 0), Vector(23.9, 0.3, 0)),
], False)
sketch21.addConstraint([
    Sketcher.Constraint("Coincident", 0, 2, 1, 1),
    Sketcher.Constraint("Coincident", 1, 2, 2, 1),
    Sketcher.Constraint("Coincident", 2, 2, 3, 1),
    Sketcher.Constraint("Coincident", 3, 2, 0, 1),
    Sketcher.Constraint("Vertical", 0),
    Sketcher.Constraint("Horizontal", 1),
    Sketcher.Constraint("Vertical", 2),
    Sketcher.Constraint("Horizontal", 3),
    Sketcher.Constraint("Equal", 3, 0),
    Sketcher.Constraint("DistanceX", 1, 1, 1, 2, Q("0.55 mm")),
    Sketcher.Constraint("DistanceX", -1, 1, 0, 2, Q("23.855 mm")),
    Sketcher.Constraint("DistanceY", 0, 2, -1, 1, Q("0.275 mm")),
])
pad21 = body21.newObject("PartDesign::Pad", "Pad020")
pad21.Profile = sketch21
pad21.Length = 5.5
pad21.Reversed = True
body22 = doc.addObject("PartDesign::Body", "Body021")
doc.recompute()

mirroring = doc.addObject("Part::Mirroring", "Mirroring")
mirroring.Source = body
mirroring.Base = Vector(0, 0, 1.25)
mirroring.Normal = Vector(0, 0, -1)
body22.BaseFeature = mirroring
doc.recompute()
body23 = doc.addObject("PartDesign::Body", "Body022")
doc.recompute()

mirroring2 = doc.addObject("Part::Mirroring", "Mirroring001")
mirroring2.Source = body13
mirroring2.Base = Vector(0, 0, 1.25)
mirroring2.Normal = Vector(0, 0, -1)
body23.BaseFeature = mirroring2
doc.recompute()
body24 = doc.addObject("PartDesign::Body", "Body023")
doc.recompute()

mirroring3 = doc.addObject("Part::Mirroring", "Mirroring002")
mirroring3.Source = body12
mirroring3.Base = Vector(0, 0, 1.25)
mirroring3.Normal = Vector(0, 0, -1)
body24.BaseFeature = mirroring3
doc.recompute()
body25 = doc.addObject("PartDesign::Body", "Body024")
doc.recompute()

mirroring4 = doc.addObject("Part::Mirroring", "Mirroring003")
mirroring4.Source = body14
mirroring4.Base = Vector(0, 0, 1.25)
mirroring4.Normal = Vector(0, 0, -1)
body25.BaseFeature = mirroring4
doc.recompute()
body26 = doc.addObject("PartDesign::Body", "Body025")
doc.recompute()

mirroring5 = doc.addObject("Part::Mirroring", "Mirroring004")
mirroring5.Source = body15
mirroring5.Base = Vector(0, 0, 1.25)
mirroring5.Normal = Vector(0, 0, -1)
body26.BaseFeature = mirroring5
doc.recompute()
body27 = doc.addObject("PartDesign::Body", "Body026")
doc.recompute()

mirroring6 = doc.addObject("Part::Mirroring", "Mirroring005")
mirroring6.Source = body16
mirroring6.Base = Vector(0, 0, 1.25)
mirroring6.Normal = Vector(0, 0, -1)
body27.BaseFeature = mirroring6
doc.recompute()
body28 = doc.addObject("PartDesign::Body", "Body027")
doc.recompute()

mirroring7 = doc.addObject("Part::Mirroring", "Mirroring006")
mirroring7.Source = body17
mirroring7.Base = Vector(0, 0, 1.25)
mirroring7.Normal = Vector(0, 0, -1)
body28.BaseFeature = mirroring7
doc.recompute()
body29 = doc.addObject("PartDesign::Body", "Body028")
doc.recompute()

mirroring8 = doc.addObject("Part::Mirroring", "Mirroring007")
mirroring8.Source = body18
mirroring8.Base = Vector(0, 0, 1.25)
mirroring8.Normal = Vector(0, 0, -1)
body29.BaseFeature = mirroring8
doc.recompute()
body30 = doc.addObject("PartDesign::Body", "Body029")
doc.recompute()

mirroring9 = doc.addObject("Part::Mirroring", "Mirroring008")
mirroring9.Source = body19
mirroring9.Base = Vector(0, 0, 1.25)
mirroring9.Normal = Vector(0, 0, -1)
body30.BaseFeature = mirroring9
doc.recompute()
body31 = doc.addObject("PartDesign::Body", "Body030")
doc.recompute()

mirroring10 = doc.addObject("Part::Mirroring", "Mirroring009")
mirroring10.Source = body20
mirroring10.Base = Vector(0, 0, 1.25)
mirroring10.Normal = Vector(0, 0, -1)
body31.BaseFeature = mirroring10
doc.recompute()
body32 = doc.addObject("PartDesign::Body", "Body031")
doc.recompute()

mirroring11 = doc.addObject("Part::Mirroring", "Mirroring010")
mirroring11.Source = body21
mirroring11.Base = Vector(0, 0, 1.25)
mirroring11.Normal = Vector(0, 0, -1)
body32.BaseFeature = mirroring11
doc.recompute()
body33 = doc.addObject("PartDesign::Body", "Body032")
doc.recompute()

mirroring12 = doc.addObject("Part::Mirroring", "Mirroring011")
mirroring12.Source = body11
mirroring12.Base = Vector(0, 0, 1.25)
mirroring12.Normal = Vector(0, 0, -1)
body33.BaseFeature = mirroring12
doc.recompute()
body34 = doc.addObject("PartDesign::Body", "Body033")
doc.recompute()

mirroring13 = doc.addObject("Part::Mirroring", "Mirroring012")
mirroring13.Source = body10
mirroring13.Base = Vector(0, 0, 1.25)
mirroring13.Normal = Vector(0, 0, -1)
body34.BaseFeature = mirroring13
doc.recompute()
body35 = doc.addObject("PartDesign::Body", "Body034")
doc.recompute()

mirroring14 = doc.addObject("Part::Mirroring", "Mirroring013")
mirroring14.Source = body9
mirroring14.Base = Vector(0, 0, 1.25)
mirroring14.Normal = Vector(0, 0, -1)
body35.BaseFeature = mirroring14
doc.recompute()
body36 = doc.addObject("PartDesign::Body", "Body035")
doc.recompute()

mirroring15 = doc.addObject("Part::Mirroring", "Mirroring014")
mirroring15.Source = body8
mirroring15.Base = Vector(0, 0, 1.25)
mirroring15.Normal = Vector(0, 0, -1)
body36.BaseFeature = mirroring15
doc.recompute()
body37 = doc.addObject("PartDesign::Body", "Body036")
doc.recompute()

mirroring16 = doc.addObject("Part::Mirroring", "Mirroring015")
mirroring16.Source = body7
mirroring16.Base = Vector(0, 0, 1.25)
mirroring16.Normal = Vector(0, 0, -1)
body37.BaseFeature = mirroring16
doc.recompute()
body38 = doc.addObject("PartDesign::Body", "Body037")
doc.recompute()

mirroring17 = doc.addObject("Part::Mirroring", "Mirroring016")
mirroring17.Source = body6
mirroring17.Base = Vector(0, 0, 1.25)
mirroring17.Normal = Vector(0, 0, -1)
body38.BaseFeature = mirroring17
doc.recompute()
body39 = doc.addObject("PartDesign::Body", "Body038")
doc.recompute()

mirroring18 = doc.addObject("Part::Mirroring", "Mirroring017")
mirroring18.Source = body5
mirroring18.Base = Vector(0, 0, 1.25)
mirroring18.Normal = Vector(0, 0, -1)
body39.BaseFeature = mirroring18
doc.recompute()
body40 = doc.addObject("PartDesign::Body", "Body039")
doc.recompute()

mirroring19 = doc.addObject("Part::Mirroring", "Mirroring018")
mirroring19.Source = body4
mirroring19.Base = Vector(0, 0, 1.25)
mirroring19.Normal = Vector(0, 0, -1)
body40.BaseFeature = mirroring19
doc.recompute()
body41 = doc.addObject("PartDesign::Body", "Body040")
doc.recompute()

mirroring20 = doc.addObject("Part::Mirroring", "Mirroring019")
mirroring20.Source = body2
mirroring20.Base = Vector(0, 0, 1.25)
mirroring20.Normal = Vector(0, 0, -1)
body41.BaseFeature = mirroring20
doc.recompute()
body42 = doc.addObject("PartDesign::Body", "Body041")
doc.recompute()

mirroring21 = doc.addObject("Part::Mirroring", "Mirroring020")
mirroring21.Source = body3
mirroring21.Base = Vector(0, 0, 1.25)
mirroring21.Normal = Vector(0, 0, -1)
body42.BaseFeature = mirroring21
doc.recompute()

doc.recompute()
